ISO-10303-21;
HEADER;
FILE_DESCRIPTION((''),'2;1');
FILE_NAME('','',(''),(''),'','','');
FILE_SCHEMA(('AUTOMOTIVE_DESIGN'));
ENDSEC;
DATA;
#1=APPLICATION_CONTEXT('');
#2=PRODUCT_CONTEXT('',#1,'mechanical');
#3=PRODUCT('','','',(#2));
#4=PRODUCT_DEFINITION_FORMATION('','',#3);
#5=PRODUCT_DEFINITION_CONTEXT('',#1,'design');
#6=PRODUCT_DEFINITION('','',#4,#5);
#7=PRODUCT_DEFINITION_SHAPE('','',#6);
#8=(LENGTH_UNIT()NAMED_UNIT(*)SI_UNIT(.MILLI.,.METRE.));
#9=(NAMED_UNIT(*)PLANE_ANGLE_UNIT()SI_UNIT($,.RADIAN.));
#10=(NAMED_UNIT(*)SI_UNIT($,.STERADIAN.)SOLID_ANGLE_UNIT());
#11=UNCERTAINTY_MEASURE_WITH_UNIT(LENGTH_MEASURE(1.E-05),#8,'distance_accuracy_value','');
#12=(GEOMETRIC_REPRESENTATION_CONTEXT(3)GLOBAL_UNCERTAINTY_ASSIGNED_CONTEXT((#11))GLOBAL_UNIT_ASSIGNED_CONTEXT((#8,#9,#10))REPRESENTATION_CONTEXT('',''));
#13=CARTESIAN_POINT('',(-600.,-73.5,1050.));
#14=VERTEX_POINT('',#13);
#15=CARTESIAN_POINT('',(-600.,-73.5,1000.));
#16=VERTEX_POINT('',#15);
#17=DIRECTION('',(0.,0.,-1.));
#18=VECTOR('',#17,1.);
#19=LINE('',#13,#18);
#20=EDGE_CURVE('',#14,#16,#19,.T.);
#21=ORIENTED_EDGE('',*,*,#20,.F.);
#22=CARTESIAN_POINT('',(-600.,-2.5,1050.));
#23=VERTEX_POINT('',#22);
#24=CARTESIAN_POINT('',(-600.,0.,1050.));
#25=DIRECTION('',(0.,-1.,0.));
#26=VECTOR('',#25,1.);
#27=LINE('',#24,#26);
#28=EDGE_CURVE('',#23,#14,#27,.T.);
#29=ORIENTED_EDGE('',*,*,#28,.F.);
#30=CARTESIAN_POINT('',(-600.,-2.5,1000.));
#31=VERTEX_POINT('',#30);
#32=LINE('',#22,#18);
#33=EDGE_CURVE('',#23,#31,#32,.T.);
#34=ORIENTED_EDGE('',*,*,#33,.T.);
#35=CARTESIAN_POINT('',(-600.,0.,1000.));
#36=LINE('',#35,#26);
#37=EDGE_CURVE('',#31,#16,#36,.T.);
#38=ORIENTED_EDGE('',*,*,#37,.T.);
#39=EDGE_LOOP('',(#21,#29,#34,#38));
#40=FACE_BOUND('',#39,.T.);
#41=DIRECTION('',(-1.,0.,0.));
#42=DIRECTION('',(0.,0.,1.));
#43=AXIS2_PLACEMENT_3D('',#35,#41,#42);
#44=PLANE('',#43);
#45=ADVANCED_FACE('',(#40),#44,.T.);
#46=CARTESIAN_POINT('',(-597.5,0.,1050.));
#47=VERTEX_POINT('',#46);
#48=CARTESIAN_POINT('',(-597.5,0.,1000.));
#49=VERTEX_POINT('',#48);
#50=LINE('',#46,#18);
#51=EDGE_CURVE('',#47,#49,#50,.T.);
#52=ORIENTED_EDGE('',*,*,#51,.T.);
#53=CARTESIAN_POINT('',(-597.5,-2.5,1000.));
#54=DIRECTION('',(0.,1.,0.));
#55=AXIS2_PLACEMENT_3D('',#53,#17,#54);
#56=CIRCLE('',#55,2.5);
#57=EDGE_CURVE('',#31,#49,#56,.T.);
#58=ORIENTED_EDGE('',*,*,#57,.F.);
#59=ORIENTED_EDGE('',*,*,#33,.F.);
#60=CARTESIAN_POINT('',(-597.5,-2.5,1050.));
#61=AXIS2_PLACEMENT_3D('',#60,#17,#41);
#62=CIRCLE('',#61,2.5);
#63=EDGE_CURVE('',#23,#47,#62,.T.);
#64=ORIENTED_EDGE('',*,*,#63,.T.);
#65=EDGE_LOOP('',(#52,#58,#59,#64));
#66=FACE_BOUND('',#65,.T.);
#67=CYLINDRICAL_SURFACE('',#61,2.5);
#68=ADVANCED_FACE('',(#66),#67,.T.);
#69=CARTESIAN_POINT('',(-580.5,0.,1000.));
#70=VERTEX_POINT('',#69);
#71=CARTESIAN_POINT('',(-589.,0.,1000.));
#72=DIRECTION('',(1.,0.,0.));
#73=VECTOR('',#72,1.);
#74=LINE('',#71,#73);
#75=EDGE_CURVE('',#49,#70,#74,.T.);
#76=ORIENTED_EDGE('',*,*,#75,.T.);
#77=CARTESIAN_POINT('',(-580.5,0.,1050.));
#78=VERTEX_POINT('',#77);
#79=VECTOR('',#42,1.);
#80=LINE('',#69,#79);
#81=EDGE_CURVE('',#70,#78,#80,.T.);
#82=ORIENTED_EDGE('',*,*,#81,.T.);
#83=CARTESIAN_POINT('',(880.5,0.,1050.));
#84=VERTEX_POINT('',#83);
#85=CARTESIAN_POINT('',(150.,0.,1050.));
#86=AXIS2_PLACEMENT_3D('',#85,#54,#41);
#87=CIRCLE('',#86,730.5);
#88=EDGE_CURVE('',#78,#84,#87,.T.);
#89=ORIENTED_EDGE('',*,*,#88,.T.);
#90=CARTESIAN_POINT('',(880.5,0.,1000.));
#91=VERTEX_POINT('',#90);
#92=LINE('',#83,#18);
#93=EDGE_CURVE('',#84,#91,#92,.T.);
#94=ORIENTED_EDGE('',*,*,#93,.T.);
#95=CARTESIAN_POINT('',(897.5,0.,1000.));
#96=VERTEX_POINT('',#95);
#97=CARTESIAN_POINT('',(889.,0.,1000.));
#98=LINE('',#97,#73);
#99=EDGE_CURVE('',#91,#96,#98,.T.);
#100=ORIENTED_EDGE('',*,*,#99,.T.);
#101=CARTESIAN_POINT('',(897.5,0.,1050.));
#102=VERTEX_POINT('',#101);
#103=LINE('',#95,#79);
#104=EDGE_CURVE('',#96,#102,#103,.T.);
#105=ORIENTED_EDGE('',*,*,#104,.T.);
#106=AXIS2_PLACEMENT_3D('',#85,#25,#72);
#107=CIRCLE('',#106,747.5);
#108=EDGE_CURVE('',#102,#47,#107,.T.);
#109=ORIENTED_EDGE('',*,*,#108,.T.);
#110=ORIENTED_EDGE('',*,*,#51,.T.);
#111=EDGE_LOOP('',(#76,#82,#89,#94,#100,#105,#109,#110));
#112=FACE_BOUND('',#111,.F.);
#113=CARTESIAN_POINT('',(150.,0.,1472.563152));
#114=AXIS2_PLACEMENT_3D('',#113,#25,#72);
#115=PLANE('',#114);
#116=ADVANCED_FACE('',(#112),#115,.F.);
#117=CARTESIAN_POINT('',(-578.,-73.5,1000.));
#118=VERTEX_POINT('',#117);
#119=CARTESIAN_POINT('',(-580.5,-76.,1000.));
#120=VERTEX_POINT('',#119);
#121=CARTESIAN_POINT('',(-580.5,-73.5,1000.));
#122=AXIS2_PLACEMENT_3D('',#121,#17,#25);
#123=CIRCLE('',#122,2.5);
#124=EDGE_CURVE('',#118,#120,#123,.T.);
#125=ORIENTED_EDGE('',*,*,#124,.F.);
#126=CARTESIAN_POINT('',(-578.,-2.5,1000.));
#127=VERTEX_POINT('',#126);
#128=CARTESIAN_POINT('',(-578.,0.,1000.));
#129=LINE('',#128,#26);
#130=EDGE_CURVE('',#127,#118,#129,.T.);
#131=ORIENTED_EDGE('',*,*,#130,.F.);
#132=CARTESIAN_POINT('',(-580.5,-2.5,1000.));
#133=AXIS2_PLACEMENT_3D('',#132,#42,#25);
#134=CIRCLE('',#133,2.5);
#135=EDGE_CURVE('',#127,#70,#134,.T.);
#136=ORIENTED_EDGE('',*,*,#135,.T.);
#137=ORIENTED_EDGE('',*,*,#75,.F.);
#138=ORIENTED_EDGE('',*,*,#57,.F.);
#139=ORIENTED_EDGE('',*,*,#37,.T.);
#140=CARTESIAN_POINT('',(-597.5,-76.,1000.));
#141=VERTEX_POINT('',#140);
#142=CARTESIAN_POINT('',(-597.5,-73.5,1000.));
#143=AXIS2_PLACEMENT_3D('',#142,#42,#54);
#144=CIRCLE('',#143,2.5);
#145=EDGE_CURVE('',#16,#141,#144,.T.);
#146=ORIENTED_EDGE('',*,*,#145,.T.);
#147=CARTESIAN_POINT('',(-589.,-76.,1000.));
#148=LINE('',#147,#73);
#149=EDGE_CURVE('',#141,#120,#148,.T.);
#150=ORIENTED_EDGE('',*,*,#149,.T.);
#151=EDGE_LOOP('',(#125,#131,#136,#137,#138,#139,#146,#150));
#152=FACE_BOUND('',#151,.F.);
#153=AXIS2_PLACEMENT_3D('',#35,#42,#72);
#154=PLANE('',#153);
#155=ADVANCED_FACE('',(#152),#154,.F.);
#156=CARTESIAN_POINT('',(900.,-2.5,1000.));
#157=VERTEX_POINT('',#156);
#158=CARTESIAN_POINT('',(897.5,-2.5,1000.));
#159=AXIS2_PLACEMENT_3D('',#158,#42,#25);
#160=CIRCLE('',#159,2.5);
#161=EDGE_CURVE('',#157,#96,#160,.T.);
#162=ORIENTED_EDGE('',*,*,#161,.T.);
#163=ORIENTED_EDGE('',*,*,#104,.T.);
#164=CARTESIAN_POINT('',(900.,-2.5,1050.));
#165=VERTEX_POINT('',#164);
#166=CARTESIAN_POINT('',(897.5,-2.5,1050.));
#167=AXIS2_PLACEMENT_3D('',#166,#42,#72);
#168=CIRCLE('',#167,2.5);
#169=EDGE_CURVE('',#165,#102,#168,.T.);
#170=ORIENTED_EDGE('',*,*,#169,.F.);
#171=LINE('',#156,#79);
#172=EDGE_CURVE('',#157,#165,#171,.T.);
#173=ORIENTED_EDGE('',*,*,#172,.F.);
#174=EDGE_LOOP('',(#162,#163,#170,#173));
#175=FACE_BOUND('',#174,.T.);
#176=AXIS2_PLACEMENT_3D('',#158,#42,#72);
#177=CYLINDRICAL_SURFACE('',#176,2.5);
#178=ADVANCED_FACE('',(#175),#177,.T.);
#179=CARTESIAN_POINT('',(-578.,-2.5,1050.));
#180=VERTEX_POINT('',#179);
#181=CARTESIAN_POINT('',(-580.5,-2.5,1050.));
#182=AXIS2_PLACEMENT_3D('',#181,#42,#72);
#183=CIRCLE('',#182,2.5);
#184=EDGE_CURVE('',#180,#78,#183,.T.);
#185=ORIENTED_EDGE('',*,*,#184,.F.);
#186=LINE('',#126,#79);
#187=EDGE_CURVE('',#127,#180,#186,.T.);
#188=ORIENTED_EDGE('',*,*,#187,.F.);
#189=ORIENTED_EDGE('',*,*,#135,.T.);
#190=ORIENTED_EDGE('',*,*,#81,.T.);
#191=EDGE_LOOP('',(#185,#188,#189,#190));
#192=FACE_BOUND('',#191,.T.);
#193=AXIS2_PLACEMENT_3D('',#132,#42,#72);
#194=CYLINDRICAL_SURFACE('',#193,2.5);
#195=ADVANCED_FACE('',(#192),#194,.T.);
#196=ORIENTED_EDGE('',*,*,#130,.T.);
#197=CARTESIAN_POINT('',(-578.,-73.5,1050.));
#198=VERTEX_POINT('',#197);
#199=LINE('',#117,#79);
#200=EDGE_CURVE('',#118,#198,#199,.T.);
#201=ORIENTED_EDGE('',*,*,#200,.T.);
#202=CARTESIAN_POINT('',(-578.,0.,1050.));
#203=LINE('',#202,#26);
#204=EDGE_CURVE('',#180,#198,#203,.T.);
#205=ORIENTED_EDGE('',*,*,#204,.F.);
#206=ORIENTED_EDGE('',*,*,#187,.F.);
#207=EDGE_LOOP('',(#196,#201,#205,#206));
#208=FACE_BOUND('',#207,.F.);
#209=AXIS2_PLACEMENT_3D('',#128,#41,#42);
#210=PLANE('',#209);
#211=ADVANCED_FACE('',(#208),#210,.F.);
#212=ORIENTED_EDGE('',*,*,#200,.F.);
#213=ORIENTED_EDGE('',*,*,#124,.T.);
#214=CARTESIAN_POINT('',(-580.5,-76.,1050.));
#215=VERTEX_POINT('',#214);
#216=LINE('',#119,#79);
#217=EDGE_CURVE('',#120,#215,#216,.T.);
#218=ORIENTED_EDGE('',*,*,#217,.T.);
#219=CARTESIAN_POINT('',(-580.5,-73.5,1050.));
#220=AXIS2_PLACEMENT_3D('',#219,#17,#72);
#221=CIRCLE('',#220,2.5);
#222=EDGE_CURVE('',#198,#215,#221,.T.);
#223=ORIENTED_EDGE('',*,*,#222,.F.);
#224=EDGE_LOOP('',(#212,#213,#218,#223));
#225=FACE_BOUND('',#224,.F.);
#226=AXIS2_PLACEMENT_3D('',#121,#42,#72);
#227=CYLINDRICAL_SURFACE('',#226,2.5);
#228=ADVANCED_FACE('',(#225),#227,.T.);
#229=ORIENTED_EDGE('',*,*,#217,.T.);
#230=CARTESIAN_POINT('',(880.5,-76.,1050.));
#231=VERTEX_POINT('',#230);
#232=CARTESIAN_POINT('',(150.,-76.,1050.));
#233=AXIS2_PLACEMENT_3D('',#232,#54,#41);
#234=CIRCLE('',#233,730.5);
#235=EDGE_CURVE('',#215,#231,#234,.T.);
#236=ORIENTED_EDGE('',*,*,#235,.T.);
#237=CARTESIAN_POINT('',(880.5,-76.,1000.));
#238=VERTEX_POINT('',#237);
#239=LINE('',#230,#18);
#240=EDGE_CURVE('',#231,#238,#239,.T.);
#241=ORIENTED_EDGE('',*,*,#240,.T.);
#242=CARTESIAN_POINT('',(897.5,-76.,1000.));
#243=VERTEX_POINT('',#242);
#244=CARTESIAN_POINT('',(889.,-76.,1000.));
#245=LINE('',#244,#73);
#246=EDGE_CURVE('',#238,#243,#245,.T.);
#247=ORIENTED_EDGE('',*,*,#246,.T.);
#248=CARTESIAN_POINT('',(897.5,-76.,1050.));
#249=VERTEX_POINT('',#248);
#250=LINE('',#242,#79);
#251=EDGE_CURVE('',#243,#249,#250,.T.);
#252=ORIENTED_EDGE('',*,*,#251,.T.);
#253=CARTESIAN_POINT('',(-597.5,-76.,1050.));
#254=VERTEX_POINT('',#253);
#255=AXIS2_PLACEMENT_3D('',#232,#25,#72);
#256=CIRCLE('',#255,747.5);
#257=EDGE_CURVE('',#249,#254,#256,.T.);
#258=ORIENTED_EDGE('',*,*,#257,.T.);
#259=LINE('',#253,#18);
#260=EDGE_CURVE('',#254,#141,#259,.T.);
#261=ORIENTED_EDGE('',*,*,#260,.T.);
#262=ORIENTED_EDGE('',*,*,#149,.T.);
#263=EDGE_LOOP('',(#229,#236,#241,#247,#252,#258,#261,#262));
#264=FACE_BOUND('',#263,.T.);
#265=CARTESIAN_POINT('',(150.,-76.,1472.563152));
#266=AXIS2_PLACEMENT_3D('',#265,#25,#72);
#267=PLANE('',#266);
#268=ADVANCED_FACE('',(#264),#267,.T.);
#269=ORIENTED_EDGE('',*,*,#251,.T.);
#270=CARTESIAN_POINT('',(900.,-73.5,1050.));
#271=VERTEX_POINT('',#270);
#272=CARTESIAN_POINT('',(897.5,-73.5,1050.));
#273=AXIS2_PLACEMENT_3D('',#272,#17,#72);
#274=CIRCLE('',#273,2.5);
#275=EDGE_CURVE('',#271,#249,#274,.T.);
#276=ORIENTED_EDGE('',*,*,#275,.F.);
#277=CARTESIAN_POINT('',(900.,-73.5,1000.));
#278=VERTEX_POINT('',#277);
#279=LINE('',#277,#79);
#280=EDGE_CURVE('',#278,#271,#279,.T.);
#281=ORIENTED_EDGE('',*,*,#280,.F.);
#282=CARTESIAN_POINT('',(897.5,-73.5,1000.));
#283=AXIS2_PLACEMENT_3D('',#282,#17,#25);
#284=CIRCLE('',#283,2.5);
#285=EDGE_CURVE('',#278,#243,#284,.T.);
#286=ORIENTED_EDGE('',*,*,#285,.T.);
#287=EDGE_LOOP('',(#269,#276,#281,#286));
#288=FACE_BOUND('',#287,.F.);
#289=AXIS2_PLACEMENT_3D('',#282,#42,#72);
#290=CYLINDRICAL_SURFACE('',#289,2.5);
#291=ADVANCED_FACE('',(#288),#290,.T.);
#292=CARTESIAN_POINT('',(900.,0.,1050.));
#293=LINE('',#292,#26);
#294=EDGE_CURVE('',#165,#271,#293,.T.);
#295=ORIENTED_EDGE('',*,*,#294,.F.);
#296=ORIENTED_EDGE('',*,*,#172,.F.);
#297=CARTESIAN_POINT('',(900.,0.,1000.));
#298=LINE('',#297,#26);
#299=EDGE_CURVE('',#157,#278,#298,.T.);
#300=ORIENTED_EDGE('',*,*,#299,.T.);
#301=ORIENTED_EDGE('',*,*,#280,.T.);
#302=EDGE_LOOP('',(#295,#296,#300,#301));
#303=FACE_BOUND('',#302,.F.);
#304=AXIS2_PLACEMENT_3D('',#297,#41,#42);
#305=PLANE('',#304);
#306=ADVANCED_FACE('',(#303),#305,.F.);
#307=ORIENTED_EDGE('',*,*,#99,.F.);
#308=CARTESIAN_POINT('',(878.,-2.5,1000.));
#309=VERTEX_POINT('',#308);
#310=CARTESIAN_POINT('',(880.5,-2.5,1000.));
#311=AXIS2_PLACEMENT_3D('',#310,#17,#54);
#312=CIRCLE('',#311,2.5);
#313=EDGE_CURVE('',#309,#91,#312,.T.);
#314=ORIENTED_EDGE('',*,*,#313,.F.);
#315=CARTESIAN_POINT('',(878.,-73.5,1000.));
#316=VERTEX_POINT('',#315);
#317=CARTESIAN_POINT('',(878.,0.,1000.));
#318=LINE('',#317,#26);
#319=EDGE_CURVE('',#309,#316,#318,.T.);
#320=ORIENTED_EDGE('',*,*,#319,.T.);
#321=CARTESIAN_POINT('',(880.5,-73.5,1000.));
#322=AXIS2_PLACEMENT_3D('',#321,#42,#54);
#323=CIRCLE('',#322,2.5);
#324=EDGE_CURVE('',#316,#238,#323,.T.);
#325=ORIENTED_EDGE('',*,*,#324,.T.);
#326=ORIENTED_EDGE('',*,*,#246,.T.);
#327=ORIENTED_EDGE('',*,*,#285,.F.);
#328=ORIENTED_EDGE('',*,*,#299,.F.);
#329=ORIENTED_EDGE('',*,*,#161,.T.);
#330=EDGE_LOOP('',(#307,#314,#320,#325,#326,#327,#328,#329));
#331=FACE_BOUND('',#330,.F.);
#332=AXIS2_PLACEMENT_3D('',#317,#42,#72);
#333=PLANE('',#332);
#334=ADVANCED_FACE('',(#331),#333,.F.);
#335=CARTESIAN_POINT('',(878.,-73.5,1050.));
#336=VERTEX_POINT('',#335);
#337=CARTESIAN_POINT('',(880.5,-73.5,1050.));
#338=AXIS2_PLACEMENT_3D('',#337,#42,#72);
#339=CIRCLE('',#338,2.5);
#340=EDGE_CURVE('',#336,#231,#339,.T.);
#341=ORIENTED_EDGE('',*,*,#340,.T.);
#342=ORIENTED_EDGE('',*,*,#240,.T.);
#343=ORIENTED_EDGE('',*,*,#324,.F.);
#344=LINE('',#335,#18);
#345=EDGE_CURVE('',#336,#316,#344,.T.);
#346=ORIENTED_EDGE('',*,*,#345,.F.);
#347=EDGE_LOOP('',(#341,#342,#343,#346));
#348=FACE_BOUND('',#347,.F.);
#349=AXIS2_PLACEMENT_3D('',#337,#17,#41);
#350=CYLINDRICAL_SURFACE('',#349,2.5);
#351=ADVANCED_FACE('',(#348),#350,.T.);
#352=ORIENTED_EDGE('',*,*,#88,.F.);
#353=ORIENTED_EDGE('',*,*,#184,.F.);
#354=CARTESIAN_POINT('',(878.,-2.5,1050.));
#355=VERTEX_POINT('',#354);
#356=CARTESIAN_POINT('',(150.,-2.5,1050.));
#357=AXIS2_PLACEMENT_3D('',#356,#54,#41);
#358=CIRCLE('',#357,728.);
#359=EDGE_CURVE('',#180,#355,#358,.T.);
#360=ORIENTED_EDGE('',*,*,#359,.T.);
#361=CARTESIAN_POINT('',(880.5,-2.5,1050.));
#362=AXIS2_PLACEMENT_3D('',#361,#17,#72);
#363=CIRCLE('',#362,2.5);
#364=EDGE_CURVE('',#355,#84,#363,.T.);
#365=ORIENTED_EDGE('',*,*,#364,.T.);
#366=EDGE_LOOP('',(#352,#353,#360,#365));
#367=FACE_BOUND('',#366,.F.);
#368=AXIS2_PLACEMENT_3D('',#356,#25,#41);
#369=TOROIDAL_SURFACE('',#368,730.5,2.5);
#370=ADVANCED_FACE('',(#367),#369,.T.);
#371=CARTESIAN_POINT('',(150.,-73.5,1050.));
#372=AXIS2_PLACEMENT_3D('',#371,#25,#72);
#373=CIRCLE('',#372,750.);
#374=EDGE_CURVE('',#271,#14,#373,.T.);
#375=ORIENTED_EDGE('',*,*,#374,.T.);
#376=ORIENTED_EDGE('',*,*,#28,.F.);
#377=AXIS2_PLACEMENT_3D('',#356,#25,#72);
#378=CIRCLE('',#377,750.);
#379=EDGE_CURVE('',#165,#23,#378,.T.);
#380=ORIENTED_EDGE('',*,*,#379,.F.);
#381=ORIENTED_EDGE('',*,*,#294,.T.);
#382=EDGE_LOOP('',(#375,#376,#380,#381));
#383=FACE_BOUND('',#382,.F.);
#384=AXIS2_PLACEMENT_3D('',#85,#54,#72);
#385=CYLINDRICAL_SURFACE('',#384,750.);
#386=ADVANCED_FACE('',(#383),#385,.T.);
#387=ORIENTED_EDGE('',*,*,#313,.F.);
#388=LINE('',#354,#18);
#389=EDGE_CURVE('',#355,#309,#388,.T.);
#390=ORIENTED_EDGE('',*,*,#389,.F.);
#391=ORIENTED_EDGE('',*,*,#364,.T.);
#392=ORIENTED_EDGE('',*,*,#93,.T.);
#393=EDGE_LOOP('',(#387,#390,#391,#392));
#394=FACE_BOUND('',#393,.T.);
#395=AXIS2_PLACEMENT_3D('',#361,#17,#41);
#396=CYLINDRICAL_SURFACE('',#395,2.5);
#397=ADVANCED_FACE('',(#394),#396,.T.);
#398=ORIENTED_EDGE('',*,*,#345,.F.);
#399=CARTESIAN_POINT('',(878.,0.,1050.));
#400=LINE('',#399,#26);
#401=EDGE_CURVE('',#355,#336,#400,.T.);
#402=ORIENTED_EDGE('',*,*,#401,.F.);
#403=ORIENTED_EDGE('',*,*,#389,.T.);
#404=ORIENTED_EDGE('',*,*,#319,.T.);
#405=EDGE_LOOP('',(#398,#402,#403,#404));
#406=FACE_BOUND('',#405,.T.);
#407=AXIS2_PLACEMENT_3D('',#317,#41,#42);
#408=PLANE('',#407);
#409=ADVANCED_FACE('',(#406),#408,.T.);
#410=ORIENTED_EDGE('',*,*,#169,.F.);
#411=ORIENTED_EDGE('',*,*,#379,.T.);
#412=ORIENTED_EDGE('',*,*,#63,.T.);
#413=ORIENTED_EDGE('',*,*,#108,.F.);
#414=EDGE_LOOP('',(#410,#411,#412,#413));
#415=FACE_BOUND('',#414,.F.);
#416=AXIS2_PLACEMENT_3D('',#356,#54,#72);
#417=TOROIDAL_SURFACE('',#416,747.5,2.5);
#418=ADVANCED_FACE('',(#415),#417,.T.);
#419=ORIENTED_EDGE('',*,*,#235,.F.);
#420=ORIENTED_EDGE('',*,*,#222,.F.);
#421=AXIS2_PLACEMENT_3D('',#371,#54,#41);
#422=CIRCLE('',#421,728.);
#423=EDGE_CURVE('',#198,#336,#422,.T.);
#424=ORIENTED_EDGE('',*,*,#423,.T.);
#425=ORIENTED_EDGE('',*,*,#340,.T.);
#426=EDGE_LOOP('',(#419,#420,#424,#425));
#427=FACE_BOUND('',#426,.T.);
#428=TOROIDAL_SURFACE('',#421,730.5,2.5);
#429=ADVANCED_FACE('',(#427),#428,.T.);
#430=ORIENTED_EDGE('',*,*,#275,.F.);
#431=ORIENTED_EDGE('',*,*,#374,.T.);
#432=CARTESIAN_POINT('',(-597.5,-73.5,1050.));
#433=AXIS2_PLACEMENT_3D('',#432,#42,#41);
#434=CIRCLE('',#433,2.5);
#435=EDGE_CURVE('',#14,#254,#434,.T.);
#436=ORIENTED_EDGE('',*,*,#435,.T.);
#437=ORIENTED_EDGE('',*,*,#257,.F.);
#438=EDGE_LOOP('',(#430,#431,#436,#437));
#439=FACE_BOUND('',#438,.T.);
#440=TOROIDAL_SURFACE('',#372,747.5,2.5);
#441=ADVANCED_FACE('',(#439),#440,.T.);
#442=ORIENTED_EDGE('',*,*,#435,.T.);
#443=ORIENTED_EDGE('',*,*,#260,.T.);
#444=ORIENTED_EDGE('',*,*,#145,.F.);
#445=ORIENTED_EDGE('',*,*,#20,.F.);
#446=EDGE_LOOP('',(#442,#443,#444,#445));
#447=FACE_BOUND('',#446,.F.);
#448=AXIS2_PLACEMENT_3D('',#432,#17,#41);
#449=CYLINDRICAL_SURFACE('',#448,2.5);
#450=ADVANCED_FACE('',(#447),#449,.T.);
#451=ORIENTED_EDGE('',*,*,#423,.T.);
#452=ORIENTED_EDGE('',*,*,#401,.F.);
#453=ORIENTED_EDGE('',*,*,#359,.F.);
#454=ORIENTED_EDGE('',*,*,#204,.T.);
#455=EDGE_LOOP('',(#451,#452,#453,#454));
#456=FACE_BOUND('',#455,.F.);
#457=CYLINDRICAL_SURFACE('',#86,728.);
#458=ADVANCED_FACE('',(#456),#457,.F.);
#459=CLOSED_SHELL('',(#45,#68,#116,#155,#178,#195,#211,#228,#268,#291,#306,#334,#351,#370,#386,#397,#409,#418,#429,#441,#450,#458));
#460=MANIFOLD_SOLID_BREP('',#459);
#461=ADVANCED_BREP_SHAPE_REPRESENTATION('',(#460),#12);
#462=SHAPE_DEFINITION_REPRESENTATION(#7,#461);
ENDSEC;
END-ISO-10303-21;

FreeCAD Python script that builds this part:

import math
import FreeCAD as App
import Part
import Sketcher

V = App.Vector
Q = App.Units.Quantity


def edges_at(feature, points):
    """Names of the edges that pass closest to the given points."""
    edges = feature.Shape.Edges
    near = lambda p: min(range(len(edges)), key=lambda i: edges[i].distToShape(Part.Vertex(*p))[0])
    return sorted({f"Edge{near(p) + 1}" for p in points})

doc = App.newDocument("Part")
params = doc.addObject("Spreadsheet::Sheet", "Params")
for row, (alias, value) in enumerate([
    ("sketch1_radius", "750 mm"),
    ("sketch1_radius2", "728 mm"),
    ("sketch1_height", "50 mm"),
    ("pad1_length", "76 mm"),
    ("fillet_radius", "2.5 mm"),
], start=1):
    params.set(f"A{row}", alias)
    params.set(f"B{row}", "=" + value)
    params.setAlias(f"B{row}", alias)

body = doc.addObject("PartDesign::Body", "Body")

sketch1 = doc.addObject("Sketcher::SketchObject", "Sketch")
body.addObject(sketch1)
sketch1.AttachmentSupport = (doc.XZ_Plane, [""])
sketch1.MapMode = "FlatFace"
sketch1.addGeometry([
    Part.ArcOfCircle(Part.Circle(V(150, 1050, 0), V(0, 0, 1), 750), math.radians(0), math.radians(180)),
    Part.LineSegment(V(-600, 1050, 0), V(-600, 1000, 0)),
    Part.LineSegment(V(-600, 1000, 0), V(-578, 1000, 0)),
    Part.LineSegment(V(-578, 1000, 0), V(-578, 1050, 0)),
    Part.ArcOfCircle(Part.Circle(V(150, 1050, 0), V(0, 0, 1), 728), math.radians(0), math.radians(180)),
    Part.LineSegment(V(878, 1050, 0), V(878, 1000, 0)),
    Part.LineSegment(V(878, 1000, 0), V(900, 1000, 0)),
    Part.LineSegment(V(900, 1000, 0), V(900, 1050, 0)),
], False)
sketch1.addConstraint([
    Sketcher.Constraint("Tangent", 0, 2, 1, 1),
    Sketcher.Constraint("Coincident", 1, 2, 2, 1),
    Sketcher.Constraint("Coincident", 2, 2, 3, 1),
    Sketcher.Constraint("Tangent", 3, 2, 4, 2),
    Sketcher.Constraint("Tangent", 4, 1, 5, 1),
    Sketcher.Constraint("Coincident", 5, 2, 6, 1),
    Sketcher.Constraint("Coincident", 6, 2, 7, 1),
    Sketcher.Constraint("Tangent", 7, 2, 0, 1),
    Sketcher.Constraint("Vertical", 1),
    Sketcher.Constraint("Horizontal", 2),
    Sketcher.Constraint("Vertical", 3),
    Sketcher.Constraint("Vertical", 5),
    Sketcher.Constraint("Horizontal", 6),
    Sketcher.Constraint("Vertical", 7),
    Sketcher.Constraint("Coincident", 4, 3, 0, 3),
    Sketcher.Constraint("Horizontal", 2, 2, 5, 2),
    Sketcher.Constraint("Radius", 0, Q("750 mm")),
    Sketcher.Constraint("Radius", 4, Q("728 mm")),
    Sketcher.Constraint("DistanceY", 1, 2, 1, 1, Q("50 mm")),
    Sketcher.Constraint("DistanceX", -1, 1, 0, 3, Q("150 mm")),
    Sketcher.Constraint("DistanceY", -1, 1, 0, 3, Q("1050 mm")),
])
sketch1.setExpression("Constraints[16]", "Params.sketch1_radius")
sketch1.setExpression("Constraints[17]", "Params.sketch1_radius2")
sketch1.setExpression("Constraints[18]", "Params.sketch1_height")
pad1 = doc.addObject("PartDesign::Pad", "Pad")
body.addObject(pad1)
pad1.Profile = sketch1
pad1.setExpression("Length", "Params.pad1_length")
doc.recompute()

fillet = doc.addObject("PartDesign::Fillet", "Fillet")
body.addObject(fillet)
fillet.Base = (pad1, edges_at(pad1, [
    (150, 0, 1800),
    (150, -76, 1800),
    (150, -76, 1778),
    (150, 0, 1778),
]))
fillet.setExpression("Radius", "Params.fillet_radius")

doc.recompute()
